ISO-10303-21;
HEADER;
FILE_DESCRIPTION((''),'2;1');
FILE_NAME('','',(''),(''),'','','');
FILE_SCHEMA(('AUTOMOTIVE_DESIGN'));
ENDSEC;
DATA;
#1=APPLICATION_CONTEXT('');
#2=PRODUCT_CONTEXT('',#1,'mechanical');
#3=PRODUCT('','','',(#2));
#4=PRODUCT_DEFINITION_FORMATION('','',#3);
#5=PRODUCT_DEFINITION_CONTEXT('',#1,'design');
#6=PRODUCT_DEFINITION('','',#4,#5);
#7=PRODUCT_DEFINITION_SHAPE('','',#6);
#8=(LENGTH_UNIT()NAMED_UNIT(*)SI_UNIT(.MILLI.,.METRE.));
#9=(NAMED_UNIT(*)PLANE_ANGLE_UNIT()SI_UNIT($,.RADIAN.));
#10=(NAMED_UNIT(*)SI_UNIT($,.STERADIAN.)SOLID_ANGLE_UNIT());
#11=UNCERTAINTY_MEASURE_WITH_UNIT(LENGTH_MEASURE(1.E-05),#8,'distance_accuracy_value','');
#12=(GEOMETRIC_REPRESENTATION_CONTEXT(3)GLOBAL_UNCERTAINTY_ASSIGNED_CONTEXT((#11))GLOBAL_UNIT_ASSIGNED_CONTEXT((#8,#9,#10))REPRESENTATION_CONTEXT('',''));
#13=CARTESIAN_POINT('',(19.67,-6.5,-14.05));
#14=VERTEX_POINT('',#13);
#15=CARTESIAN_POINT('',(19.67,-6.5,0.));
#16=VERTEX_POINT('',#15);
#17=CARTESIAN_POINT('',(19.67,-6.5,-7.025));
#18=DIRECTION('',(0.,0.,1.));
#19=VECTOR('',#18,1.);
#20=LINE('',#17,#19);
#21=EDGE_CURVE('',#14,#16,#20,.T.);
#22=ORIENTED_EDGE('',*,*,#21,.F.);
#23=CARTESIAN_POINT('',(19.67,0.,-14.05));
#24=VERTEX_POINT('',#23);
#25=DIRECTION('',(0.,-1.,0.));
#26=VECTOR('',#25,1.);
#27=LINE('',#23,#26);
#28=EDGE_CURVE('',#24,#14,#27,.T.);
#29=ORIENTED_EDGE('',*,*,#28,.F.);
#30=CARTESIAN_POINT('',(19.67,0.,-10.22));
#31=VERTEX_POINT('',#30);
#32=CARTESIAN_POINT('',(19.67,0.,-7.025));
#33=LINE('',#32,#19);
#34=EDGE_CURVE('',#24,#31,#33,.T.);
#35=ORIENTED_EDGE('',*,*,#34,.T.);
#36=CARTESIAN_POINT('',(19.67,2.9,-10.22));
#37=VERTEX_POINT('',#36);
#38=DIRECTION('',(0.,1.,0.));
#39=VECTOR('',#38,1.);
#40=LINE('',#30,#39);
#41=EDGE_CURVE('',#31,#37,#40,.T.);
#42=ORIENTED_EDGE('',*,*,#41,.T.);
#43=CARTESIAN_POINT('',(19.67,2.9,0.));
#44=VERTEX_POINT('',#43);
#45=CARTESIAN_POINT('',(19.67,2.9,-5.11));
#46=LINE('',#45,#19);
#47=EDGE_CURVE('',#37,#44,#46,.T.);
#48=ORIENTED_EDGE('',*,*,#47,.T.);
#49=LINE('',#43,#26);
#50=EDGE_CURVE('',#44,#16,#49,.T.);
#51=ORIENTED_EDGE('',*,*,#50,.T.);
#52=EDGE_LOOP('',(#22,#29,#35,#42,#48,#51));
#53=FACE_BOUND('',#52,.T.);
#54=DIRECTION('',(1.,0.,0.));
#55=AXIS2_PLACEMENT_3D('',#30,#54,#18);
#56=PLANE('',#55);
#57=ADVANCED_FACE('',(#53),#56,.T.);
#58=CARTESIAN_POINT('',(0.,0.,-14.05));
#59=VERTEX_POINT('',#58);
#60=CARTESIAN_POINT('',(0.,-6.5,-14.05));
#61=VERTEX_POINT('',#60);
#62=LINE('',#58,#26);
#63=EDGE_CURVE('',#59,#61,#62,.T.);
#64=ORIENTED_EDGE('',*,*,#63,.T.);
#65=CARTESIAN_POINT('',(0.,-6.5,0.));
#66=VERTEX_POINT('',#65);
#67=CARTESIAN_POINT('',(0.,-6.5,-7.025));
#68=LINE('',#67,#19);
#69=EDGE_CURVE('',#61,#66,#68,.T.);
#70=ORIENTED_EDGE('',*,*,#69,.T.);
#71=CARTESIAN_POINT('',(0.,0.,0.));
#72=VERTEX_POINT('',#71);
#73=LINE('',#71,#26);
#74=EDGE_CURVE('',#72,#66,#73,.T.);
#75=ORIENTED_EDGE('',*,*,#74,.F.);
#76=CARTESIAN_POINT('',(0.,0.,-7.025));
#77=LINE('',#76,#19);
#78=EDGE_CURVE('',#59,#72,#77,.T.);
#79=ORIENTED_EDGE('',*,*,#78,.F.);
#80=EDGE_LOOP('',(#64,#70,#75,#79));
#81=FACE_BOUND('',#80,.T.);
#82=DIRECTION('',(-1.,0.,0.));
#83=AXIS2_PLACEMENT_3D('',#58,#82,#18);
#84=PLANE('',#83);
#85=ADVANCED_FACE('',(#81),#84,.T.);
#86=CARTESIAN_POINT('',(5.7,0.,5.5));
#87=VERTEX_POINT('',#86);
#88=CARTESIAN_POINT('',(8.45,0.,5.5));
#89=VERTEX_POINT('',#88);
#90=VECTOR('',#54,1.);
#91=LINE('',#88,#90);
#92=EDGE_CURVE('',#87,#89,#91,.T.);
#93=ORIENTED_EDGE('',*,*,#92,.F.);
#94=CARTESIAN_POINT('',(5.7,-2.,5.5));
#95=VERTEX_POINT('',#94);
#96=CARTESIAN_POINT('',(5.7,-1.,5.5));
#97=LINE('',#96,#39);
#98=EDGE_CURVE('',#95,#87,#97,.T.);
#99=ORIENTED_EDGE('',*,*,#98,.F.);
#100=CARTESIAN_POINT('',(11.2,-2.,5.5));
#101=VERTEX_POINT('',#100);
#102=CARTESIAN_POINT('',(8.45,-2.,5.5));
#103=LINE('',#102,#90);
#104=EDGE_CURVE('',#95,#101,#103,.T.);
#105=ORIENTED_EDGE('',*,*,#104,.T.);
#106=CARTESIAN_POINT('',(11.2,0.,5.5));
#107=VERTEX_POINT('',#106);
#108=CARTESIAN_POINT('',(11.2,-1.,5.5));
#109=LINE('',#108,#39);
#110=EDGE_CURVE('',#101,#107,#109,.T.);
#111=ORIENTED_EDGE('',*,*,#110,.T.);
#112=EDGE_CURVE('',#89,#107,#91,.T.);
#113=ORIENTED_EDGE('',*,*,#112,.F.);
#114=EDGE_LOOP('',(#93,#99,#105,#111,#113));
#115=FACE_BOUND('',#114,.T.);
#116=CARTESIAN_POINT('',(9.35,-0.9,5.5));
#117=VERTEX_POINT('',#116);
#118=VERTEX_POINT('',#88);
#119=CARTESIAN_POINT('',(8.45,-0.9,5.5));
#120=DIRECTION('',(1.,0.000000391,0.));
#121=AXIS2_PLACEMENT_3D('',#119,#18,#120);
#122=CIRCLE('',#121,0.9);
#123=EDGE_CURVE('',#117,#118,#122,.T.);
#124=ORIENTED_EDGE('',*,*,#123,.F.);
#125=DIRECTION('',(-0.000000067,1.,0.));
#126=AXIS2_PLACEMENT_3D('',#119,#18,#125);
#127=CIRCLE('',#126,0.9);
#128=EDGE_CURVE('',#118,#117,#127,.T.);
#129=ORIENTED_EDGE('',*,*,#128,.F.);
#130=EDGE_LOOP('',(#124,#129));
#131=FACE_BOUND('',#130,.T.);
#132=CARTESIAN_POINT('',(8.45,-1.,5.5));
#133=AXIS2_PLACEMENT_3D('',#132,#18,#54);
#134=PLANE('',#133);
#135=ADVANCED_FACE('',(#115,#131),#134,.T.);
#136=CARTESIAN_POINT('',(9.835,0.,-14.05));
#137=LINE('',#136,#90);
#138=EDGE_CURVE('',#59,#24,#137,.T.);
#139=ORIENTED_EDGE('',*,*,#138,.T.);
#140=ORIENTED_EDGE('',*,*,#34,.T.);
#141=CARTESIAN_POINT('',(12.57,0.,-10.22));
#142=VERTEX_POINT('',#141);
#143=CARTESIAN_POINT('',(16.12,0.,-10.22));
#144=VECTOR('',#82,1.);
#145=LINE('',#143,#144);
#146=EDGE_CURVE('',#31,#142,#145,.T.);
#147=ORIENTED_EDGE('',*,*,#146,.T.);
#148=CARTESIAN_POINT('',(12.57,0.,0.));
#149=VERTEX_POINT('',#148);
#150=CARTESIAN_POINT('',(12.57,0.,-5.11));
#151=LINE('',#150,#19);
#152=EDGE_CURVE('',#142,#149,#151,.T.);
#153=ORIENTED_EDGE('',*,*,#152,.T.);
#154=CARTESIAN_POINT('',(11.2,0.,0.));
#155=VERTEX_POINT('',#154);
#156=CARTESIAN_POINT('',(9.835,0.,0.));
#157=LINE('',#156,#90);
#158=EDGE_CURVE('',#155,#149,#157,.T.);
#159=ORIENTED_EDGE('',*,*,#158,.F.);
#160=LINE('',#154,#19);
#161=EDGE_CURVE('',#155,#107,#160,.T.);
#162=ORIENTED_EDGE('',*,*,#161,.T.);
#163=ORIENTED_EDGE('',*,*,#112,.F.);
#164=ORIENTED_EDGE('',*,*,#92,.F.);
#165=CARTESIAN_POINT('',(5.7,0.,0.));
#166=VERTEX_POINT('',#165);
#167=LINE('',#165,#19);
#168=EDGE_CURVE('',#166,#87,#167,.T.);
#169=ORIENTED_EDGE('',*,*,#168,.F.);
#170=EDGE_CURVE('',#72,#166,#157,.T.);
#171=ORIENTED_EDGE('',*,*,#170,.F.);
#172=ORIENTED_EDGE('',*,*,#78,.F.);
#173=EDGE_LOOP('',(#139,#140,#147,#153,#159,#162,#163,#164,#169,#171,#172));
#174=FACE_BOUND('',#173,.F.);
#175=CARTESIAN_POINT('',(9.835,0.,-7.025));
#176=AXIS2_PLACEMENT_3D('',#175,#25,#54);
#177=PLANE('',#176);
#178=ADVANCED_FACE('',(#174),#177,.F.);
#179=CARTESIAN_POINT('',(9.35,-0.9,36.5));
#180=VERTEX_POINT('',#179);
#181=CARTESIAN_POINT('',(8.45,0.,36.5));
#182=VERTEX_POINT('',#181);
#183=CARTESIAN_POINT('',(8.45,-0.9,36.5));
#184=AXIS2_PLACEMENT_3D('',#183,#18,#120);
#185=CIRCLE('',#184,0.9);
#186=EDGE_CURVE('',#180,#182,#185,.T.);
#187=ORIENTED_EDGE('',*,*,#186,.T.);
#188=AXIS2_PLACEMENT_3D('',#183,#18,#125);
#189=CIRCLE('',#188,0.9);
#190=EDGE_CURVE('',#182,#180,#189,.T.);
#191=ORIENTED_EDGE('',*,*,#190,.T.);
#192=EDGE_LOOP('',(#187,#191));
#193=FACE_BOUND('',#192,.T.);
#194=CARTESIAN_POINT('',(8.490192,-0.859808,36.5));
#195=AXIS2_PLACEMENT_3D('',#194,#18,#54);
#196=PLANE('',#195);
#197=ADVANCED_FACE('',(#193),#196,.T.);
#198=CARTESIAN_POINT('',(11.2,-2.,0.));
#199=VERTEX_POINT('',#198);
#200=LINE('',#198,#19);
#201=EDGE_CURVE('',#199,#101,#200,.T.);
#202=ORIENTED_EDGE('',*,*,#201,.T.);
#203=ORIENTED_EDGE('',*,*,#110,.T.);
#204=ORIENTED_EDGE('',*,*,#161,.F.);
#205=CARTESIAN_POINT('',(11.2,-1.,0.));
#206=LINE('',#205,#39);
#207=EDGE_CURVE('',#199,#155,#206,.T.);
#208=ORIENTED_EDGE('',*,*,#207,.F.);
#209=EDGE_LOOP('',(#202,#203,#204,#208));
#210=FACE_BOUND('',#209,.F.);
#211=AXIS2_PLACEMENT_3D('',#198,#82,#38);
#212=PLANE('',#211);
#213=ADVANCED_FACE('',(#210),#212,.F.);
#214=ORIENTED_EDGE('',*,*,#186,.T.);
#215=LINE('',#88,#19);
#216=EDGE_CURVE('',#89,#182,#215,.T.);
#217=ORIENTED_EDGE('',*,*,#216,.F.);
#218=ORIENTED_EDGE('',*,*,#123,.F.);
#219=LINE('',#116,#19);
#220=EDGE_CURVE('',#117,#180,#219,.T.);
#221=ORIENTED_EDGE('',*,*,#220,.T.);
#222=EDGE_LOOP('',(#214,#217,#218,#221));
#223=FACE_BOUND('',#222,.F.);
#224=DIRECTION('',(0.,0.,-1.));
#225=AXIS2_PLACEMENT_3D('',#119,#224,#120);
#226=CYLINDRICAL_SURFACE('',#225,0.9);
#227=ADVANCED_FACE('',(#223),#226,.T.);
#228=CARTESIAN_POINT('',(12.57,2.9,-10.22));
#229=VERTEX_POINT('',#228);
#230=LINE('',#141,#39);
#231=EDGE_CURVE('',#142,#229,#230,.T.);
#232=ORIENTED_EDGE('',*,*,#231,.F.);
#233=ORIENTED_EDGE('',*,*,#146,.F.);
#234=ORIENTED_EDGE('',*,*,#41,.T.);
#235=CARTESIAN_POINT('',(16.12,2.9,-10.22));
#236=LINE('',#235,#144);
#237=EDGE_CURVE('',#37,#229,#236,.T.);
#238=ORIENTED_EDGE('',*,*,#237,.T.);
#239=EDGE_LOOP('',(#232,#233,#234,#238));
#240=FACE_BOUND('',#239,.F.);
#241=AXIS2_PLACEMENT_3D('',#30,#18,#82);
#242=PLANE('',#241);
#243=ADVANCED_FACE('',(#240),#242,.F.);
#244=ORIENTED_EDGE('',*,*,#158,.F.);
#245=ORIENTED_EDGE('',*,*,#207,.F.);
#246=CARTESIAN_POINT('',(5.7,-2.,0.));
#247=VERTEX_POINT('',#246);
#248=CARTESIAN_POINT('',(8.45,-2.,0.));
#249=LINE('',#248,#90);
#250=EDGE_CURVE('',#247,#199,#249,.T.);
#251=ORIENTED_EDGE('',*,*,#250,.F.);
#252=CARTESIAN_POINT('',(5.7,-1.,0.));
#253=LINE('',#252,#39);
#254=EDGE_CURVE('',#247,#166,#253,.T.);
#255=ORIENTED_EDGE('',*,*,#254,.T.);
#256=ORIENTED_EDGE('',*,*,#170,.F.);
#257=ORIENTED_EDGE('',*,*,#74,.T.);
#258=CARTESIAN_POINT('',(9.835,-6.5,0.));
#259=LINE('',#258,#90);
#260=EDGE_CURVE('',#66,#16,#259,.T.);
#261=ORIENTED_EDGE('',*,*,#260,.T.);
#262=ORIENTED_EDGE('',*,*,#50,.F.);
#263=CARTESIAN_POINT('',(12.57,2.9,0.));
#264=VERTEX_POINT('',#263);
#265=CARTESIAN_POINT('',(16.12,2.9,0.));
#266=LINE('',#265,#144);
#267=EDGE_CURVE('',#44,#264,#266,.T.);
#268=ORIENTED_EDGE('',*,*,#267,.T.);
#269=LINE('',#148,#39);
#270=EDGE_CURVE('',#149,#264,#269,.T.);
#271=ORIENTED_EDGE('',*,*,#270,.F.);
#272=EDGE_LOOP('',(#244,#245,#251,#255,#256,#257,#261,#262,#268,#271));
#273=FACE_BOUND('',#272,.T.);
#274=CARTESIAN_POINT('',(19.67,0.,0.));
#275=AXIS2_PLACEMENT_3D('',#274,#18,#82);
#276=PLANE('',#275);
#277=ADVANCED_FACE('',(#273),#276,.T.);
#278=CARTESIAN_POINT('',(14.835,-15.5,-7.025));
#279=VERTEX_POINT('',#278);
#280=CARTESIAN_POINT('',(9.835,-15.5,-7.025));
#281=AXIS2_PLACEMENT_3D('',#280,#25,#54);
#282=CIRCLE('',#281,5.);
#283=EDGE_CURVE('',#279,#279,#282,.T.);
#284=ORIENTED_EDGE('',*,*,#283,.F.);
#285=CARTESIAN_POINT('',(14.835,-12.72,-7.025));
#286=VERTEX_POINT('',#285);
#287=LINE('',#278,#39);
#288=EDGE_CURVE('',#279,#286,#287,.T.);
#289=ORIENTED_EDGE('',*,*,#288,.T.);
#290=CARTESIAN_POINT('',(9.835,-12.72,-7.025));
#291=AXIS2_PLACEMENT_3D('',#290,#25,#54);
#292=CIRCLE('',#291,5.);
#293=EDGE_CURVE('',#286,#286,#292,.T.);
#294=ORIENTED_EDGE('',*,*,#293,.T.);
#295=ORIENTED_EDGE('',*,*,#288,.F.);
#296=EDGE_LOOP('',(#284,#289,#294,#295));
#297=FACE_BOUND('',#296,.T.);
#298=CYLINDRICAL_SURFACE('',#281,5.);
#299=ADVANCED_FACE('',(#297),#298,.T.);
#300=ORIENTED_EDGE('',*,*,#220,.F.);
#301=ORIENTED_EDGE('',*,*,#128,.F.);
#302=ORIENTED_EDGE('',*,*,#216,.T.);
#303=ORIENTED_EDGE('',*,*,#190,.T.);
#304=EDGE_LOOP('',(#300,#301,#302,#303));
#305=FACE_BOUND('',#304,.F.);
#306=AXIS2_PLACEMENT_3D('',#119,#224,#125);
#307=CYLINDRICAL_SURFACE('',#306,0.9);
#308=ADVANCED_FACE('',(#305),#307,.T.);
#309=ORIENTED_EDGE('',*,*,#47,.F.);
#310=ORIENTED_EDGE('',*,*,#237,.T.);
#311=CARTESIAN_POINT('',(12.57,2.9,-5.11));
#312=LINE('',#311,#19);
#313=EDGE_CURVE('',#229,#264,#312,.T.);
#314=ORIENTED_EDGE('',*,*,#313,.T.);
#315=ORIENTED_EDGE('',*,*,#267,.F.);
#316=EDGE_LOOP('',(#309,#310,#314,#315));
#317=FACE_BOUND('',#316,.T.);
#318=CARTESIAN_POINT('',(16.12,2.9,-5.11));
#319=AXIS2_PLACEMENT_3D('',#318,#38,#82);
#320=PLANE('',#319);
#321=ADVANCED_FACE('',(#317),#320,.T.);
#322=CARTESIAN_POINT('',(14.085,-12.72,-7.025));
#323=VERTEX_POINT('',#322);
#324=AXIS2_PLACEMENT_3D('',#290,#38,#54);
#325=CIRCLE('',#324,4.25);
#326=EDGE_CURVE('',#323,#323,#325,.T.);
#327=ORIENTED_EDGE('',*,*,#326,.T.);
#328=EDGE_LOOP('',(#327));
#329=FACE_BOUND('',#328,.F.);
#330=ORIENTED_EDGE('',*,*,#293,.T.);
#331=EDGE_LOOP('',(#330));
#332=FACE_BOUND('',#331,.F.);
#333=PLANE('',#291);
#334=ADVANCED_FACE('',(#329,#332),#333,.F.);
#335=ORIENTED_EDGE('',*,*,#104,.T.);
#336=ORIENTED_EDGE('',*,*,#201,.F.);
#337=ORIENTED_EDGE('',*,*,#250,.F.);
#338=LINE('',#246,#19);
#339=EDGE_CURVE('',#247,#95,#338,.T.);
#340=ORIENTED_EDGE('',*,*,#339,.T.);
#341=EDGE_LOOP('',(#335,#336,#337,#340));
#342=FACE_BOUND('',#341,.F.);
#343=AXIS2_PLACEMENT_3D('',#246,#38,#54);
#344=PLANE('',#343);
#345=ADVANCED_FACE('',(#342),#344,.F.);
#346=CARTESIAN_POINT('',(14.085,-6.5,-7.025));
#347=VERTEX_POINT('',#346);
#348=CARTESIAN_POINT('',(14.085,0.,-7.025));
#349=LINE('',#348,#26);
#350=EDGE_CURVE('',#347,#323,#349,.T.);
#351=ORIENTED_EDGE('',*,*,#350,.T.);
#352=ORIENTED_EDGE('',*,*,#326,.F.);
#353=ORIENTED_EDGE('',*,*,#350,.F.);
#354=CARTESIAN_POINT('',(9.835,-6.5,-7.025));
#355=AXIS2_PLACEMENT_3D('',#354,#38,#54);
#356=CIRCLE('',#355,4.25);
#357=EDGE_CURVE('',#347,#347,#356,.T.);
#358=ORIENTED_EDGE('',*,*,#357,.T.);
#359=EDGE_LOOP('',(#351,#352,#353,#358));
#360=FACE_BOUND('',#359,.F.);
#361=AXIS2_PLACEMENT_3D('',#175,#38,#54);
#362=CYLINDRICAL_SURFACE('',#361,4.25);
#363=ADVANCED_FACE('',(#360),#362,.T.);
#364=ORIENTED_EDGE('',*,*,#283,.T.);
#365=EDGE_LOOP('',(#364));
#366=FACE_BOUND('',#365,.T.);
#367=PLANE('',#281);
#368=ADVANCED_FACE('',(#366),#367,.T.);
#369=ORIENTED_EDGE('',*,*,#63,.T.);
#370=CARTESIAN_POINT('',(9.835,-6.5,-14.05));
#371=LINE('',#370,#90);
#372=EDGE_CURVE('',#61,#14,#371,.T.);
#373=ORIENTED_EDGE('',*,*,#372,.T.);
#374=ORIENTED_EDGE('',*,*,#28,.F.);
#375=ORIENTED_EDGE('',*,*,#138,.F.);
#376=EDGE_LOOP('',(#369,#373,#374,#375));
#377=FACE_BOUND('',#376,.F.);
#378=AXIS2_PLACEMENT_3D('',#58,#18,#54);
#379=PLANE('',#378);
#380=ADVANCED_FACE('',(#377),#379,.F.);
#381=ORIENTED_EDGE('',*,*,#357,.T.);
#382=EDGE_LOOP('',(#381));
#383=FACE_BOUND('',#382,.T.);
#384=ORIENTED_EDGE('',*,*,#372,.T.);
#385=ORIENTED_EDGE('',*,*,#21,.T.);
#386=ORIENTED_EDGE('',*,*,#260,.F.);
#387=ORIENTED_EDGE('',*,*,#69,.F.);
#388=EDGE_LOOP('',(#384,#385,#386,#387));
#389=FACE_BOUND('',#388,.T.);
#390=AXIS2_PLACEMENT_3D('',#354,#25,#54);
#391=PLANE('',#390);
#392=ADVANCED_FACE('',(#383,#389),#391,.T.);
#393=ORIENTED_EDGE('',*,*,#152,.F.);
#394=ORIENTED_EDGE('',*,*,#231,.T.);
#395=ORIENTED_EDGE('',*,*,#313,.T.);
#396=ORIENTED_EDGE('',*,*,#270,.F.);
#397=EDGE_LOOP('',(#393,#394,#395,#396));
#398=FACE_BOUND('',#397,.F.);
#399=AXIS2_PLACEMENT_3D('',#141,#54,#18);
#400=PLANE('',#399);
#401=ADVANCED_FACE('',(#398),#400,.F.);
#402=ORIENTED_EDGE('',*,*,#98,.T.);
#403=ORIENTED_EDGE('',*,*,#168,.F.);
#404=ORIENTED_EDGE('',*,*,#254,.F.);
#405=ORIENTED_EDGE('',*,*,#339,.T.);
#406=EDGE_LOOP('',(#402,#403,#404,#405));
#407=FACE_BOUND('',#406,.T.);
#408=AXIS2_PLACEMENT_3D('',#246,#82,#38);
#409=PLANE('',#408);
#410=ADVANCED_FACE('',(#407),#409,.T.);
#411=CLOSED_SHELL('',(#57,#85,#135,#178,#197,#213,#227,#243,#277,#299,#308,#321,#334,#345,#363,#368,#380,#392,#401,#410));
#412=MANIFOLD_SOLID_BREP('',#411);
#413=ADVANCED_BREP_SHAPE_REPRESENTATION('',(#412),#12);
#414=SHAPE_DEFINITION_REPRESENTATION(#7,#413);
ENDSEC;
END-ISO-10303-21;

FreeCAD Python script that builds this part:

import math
import FreeCAD as App
import Part
import Sketcher
from FreeCAD import Vector
Q = App.Units.Quantity

doc = App.newDocument("Part")
body = doc.addObject("PartDesign::Body", "Body")

# Sketch on XZ plane
sketch1 = body.newObject("Sketcher::SketchObject", "Sketch")
sketch1.AttachmentSupport = (doc.getObject("XZ_Plane"), [""])
sketch1.MapMode = "FlatFace"
sketch1.addGeometry(Part.LineSegment(Vector(0, 0, 0), Vector(0, -14, 0)), False)
sketch1.addGeometry(Part.LineSegment(Vector(0, -14, 0), Vector(20, -14, 0)), False)
sketch1.addGeometry(Part.LineSegment(Vector(20, -14, 0), Vector(20, 0, 0)), False)
sketch1.addGeometry(Part.LineSegment(Vector(20, 0, 0), Vector(0, 0, 0)), False)
sketch1.addConstraint(Sketcher.Constraint("Coincident", 0, 2, 1, 1))
sketch1.addConstraint(Sketcher.Constraint("Coincident", 1, 2, 2, 1))
sketch1.addConstraint(Sketcher.Constraint("Coincident", 2, 2, 3, 1))
sketch1.addConstraint(Sketcher.Constraint("Coincident", 3, 2, 0, 1))
sketch1.addConstraint(Sketcher.Constraint("Vertical", 0))
sketch1.addConstraint(Sketcher.Constraint("Horizontal", 1))
sketch1.addConstraint(Sketcher.Constraint("Vertical", 2))
sketch1.addConstraint(Sketcher.Constraint("Horizontal", 3))
sketch1.addConstraint(Sketcher.Constraint("Coincident", 3, 2, -1, 1))
sketch1.addConstraint(Sketcher.Constraint("DistanceX", 1, 1, 1, 2, Q("19.67 mm")))
sketch1.addConstraint(Sketcher.Constraint("DistanceY", 0, 2, 0, 1, Q("14.05 mm")))
pad1 = body.newObject("PartDesign::Pad", "Pad")
pad1.Profile = sketch1
pad1.Length = 6.5

# Sketch on XZ plane
sketch2 = body.newObject("Sketcher::SketchObject", "Sketch001")
sketch2.AttachmentSupport = (doc.getObject("XZ_Plane"), [""])
sketch2.MapMode = "FlatFace"
sketch2.addGeometry(Part.Circle(Vector(9.8, -7, 0), Vector(0, 0, 1), 4.2), False)
sketch2.addConstraint(Sketcher.Constraint("Diameter", 0, Q("8.5 mm")))
sketch2.addConstraint(Sketcher.Constraint("DistanceX", -1, 1, 0, 3, Q("9.835 mm")))
sketch2.addConstraint(Sketcher.Constraint("DistanceY", 0, 3, -1, 1, Q("7.025 mm")))
pad2 = body.newObject("PartDesign::Pad", "Pad001")
pad2.Profile = sketch2
pad2.Length = 15.5

# Sketch on XZ plane
sketch3 = body.newObject("Sketcher::SketchObject", "Sketch002")
sketch3.AttachmentSupport = (doc.getObject("XZ_Plane"), [""])
sketch3.MapMode = "FlatFace"
sketch3.AttachmentOffset = App.Placement(Vector(0, 0, 15.5), App.Rotation())
sketch3.addGeometry(Part.Circle(Vector(10, -7, 0), Vector(0, 0, 1), 5), False)
sketch3.addConstraint(Sketcher.Constraint("Diameter", 0, Q("10 mm")))
sketch3.addConstraint(Sketcher.Constraint("DistanceX", -1, 1, 0, 3, Q("9.835 mm")))
sketch3.addConstraint(Sketcher.Constraint("DistanceY", 0, 3, -1, 1, Q("7.025 mm")))
pad3 = body.newObject("PartDesign::Pad", "Pad002")
pad3.Profile = sketch3
pad3.Length = 2.78
pad3.Reversed = True

# Sketch on XZ plane
sketch4 = body.newObject("Sketcher::SketchObject", "Sketch003")
sketch4.AttachmentSupport = (doc.getObject("XZ_Plane"), [""])
sketch4.MapMode = "FlatFace"
sketch4.addGeometry(Part.LineSegment(Vector(20, 0, 0), Vector(20, -10, 0)), False)
sketch4.addGeometry(Part.LineSegment(Vector(20, -10, 0), Vector(13, -10, 0)), False)
sketch4.addGeometry(Part.LineSegment(Vector(13, -10, 0), Vector(13, 0, 0)), False)
sketch4.addGeometry(Part.LineSegment(Vector(13, 0, 0), Vector(20, 0, 0)), False)
sketch4.addConstraint(Sketcher.Constraint("Coincident", 0, 2, 1, 1))
sketch4.addConstraint(Sketcher.Constraint("Coincident", 1, 2, 2, 1))
sketch4.addConstraint(Sketcher.Constraint("Coincident", 2, 2, 3, 1))
sketch4.addConstraint(Sketcher.Constraint("Coincident", 3, 2, 0, 1))
sketch4.addConstraint(Sketcher.Constraint("Vertical", 0))
sketch4.addConstraint(Sketcher.Constraint("Horizontal", 1))
sketch4.addConstraint(Sketcher.Constraint("Vertical", 2))
sketch4.addConstraint(Sketcher.Constraint("Horizontal", 3))
sketch4.addConstraint(Sketcher.Constraint("PointOnObject", 2, 2, -1))
sketch4.addConstraint(Sketcher.Constraint("DistanceX", 1, 2, 1, 1, Q("7.1 mm")))
sketch4.addConstraint(Sketcher.Constraint("DistanceY", 0, 2, 0, 1, Q("10.22 mm")))
sketch4.addConstraint(Sketcher.Constraint("DistanceX", -1, 1, 0, 2, Q("19.67 mm")))
pad4 = body.newObject("PartDesign::Pad", "Pad003")
pad4.Profile = sketch4
pad4.Length = 2.9
pad4.Reversed = True

# Sketch on XY plane
sketch5 = body.newObject("Sketcher::SketchObject", "Sketch004")
sketch5.AttachmentSupport = (doc.getObject("XY_Plane"), [""])
sketch5.MapMode = "FlatFace"
sketch5.addGeometry(Part.LineSegment(Vector(5.7, 0, 0), Vector(5.7, -2, 0)), False)
sketch5.addGeometry(Part.LineSegment(Vector(5.7, -2, 0), Vector(11.2, -2, 0)), False)
sketch5.addGeometry(Part.LineSegment(Vector(11.2, -2, 0), Vector(11.2, 0, 0)), False)
sketch5.addGeometry(Part.LineSegment(Vector(11.2, 0, 0), Vector(5.7, 0, 0)), False)
sketch5.addConstraint(Sketcher.Constraint("Coincident", 0, 2, 1, 1))
sketch5.addConstraint(Sketcher.Constraint("Coincident", 1, 2, 2, 1))
sketch5.addConstraint(Sketcher.Constraint("Coincident", 2, 2, 3, 1))
sketch5.addConstraint(Sketcher.Constraint("Coincident", 3, 2, 0, 1))
sketch5.addConstraint(Sketcher.Constraint("Vertical", 0))
sketch5.addConstraint(Sketcher.Constraint("Horizontal", 1))
sketch5.addConstraint(Sketcher.Constraint("Vertical", 2))
sketch5.addConstraint(Sketcher.Constraint("Horizontal", 3))
sketch5.addConstraint(Sketcher.Constraint("PointOnObject", 2, 2, -1))
sketch5.addConstraint(Sketcher.Constraint("DistanceY", 0, 2, 0, 1, Q("2 mm")))
sketch5.addConstraint(Sketcher.Constraint("DistanceX", 1, 1, 1, 2, Q("5.5 mm")))
sketch5.addConstraint(Sketcher.Constraint("DistanceX", -1, 1, 0, 2, Q("5.7 mm")))
pad5 = body.newObject("PartDesign::Pad", "Pad004")
pad5.Profile = sketch5
pad5.Length = 5.5

# Sketch on XY plane
sketch6 = body.newObject("Sketcher::SketchObject", "Sketch005")
sketch6.AttachmentSupport = (doc.getObject("XY_Plane"), [""])
sketch6.MapMode = "FlatFace"
sketch6.AttachmentOffset = App.Placement(Vector(0, 0, 5.5), App.Rotation())
sketch6.addGeometry(Part.ArcOfCircle(Part.Circle(Vector(8.5, -0.9, 0), Vector(0, 0, 1), 0.9), math.radians(90), math.radians(360)), False)
sketch6.addGeometry(Part.ArcOfCircle(Part.Circle(Vector(8.4, -0.9, 0), Vector(0, 0, 1), 0.9), math.radians(0), math.radians(90)), False)
sketch6.addConstraint(Sketcher.Constraint("Tangent", 0, 1, 1, 2))
sketch6.addConstraint(Sketcher.Constraint("Coincident", 1, 1, 0, 2))
sketch6.addConstraint(Sketcher.Constraint("PointOnObject", 0, 1, -1))
sketch6.addConstraint(Sketcher.Constraint("Horizontal", 0, 3, 1, 1))
sketch6.addConstraint(Sketcher.Constraint("Vertical", 1, 3, 0, 1))
sketch6.addConstraint(Sketcher.Constraint("Radius", 0, Q("0.9 mm")))
sketch6.addConstraint(Sketcher.Constraint("DistanceX", -1, 1, 0, 3, Q("8.45 mm")))
pad6 = body.newObject("PartDesign::Pad", "Pad005")
pad6.Profile = sketch6
pad6.Length = 31

doc.recompute()
